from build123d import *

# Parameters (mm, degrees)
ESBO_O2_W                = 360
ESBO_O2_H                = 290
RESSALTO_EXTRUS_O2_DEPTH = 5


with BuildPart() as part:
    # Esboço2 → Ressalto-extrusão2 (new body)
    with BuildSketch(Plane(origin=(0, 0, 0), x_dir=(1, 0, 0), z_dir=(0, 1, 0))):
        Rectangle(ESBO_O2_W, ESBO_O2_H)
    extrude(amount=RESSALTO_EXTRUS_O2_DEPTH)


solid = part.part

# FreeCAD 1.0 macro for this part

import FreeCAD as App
import Part
import Sketcher
from FreeCAD import Vector
Q = App.Units.Quantity


def add_polygon(sketch, points):
    """Adds a closed chain of lines whose ends are joined by coincident constraints."""
    first, n = sketch.GeometryCount, len(points)
    for a, b in zip(points, points[1:] + points[:1]):
        sketch.addGeometry(Part.LineSegment(App.Vector(*a, 0), App.Vector(*b, 0)), False)
    for i in range(n):
        sketch.addConstraint(Sketcher.Constraint("Coincident", first + i, 2, first + (i + 1) % n, 1))

doc = App.newDocument("Part")
params = doc.addObject("Spreadsheet::Sheet", "Params")
for row, (alias, value) in enumerate([
    ("sketch1_width", "360 mm"),
    ("sketch1_height", "290 mm"),
    ("pad1_length", "5 mm"),
], start=1):
    params.set(f"A{row}", alias)
    params.set(f"B{row}", "=" + value)
    params.setAlias(f"B{row}", alias)

body = doc.addObject("PartDesign::Body", "Body")

# Sketch on XZ plane
sketch1 = doc.addObject("Sketcher::SketchObject", "Sketch")
body.addObject(sketch1)
sketch1.AttachmentSupport = (doc.XZ_Plane, [""])
sketch1.MapMode = "FlatFace"
add_polygon(sketch1, [(-180, -145), (-180, 145), (180, 145), (180, -145)])  # lines 0-3
sketch1.addConstraint([
    Sketcher.Constraint("Vertical", 0),
    Sketcher.Constraint("Horizontal", 1),
    Sketcher.Constraint("Vertical", 2),
    Sketcher.Constraint("Horizontal", 3),
    Sketcher.Constraint("Symmetric", 0, 2, 2, 2, -1, 1),
    Sketcher.Constraint("DistanceX", 1, 1, 1, 2, Q("360 mm")),
    Sketcher.Constraint("DistanceY", 0, 1, 0, 2, Q("290 mm")),
])
sketch1.setExpression("Constraints[9]", "Params.sketch1_width")
sketch1.setExpression("Constraints[10]", "Params.sketch1_height")
pad1 = doc.addObject("PartDesign::Pad", "Pad")
body.addObject(pad1)
pad1.Profile = sketch1
pad1.setExpression("Length", "Params.pad1_length")
pad1.Reversed = True

doc.recompute()
